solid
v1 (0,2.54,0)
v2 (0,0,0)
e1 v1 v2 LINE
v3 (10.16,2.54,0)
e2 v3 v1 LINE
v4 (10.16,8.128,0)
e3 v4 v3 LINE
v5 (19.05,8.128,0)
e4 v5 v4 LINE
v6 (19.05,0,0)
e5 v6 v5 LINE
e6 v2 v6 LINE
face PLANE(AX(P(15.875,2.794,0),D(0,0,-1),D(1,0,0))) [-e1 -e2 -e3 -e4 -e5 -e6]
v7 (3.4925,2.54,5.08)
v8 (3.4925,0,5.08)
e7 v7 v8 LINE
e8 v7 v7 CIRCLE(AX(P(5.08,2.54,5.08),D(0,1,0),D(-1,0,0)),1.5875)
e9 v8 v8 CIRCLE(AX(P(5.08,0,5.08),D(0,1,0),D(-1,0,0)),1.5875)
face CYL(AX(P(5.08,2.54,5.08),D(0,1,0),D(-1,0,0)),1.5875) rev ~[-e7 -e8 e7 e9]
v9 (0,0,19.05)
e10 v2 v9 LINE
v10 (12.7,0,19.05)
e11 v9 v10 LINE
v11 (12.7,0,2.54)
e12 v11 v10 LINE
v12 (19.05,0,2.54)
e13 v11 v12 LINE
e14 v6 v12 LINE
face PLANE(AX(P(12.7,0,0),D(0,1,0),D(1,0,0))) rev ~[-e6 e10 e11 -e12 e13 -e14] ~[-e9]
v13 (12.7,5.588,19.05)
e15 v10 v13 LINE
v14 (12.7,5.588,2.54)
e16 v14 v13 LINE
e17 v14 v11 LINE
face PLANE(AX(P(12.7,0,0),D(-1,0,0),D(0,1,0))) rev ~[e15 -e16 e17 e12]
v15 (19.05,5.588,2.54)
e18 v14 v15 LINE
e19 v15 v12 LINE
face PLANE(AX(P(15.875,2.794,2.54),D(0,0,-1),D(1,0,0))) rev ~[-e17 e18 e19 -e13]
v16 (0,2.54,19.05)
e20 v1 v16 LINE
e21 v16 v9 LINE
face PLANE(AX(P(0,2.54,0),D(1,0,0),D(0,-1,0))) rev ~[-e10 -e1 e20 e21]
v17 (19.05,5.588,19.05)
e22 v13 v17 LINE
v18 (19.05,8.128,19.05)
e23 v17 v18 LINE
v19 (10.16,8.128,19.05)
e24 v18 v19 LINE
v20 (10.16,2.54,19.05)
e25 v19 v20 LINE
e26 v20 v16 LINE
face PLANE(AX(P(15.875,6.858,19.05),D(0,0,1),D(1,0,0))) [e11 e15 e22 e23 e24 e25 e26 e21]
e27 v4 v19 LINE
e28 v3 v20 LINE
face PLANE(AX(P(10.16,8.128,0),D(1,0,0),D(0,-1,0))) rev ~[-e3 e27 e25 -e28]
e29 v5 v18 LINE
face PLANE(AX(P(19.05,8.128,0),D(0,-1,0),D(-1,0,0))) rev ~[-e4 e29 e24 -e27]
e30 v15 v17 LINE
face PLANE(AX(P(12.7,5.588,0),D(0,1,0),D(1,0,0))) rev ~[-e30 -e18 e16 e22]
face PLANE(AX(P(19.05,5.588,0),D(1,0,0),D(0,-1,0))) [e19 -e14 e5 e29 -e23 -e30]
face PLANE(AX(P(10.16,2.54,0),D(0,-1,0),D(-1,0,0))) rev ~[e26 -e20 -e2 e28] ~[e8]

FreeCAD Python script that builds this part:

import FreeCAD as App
import Part
import Sketcher

V = App.Vector
Q = App.Units.Quantity

doc = App.newDocument("Part")
body = doc.addObject("PartDesign::Body", "Body")

# Sketch on XY plane
sketch1 = doc.addObject("Sketcher::SketchObject", "Sketch")
body.addObject(sketch1)
sketch1.AttachmentSupport = (doc.XY_Plane, [""])
sketch1.MapMode = "FlatFace"
sketch1.addGeometry([
    Part.LineSegment(V(12.7, 5.6, 0), V(19.1, 5.6, 0)),  # 0
    Part.LineSegment(V(19.1, 5.6, 0), V(19.1, 8.1, 0)),  # 1
    Part.LineSegment(V(19.1, 8.1, 0), V(10.2, 8.1, 0)),  # 2
    Part.LineSegment(V(10.2, 8.1, 0), V(10.2, 2.5, 0)),  # 3
    Part.LineSegment(V(10.2, 2.5, 0), V(0, 2.5, 0)),  # 4
    Part.LineSegment(V(0, 2.5, 0), V(0, 0, 0)),  # 5
    Part.LineSegment(V(0, 0, 0), V(12.7, 0, 0)),  # 6
    Part.LineSegment(V(12.7, 0, 0), V(12.7, 5.6, 0)),  # 7
], False)
sketch1.addConstraint([
    Sketcher.Constraint("Coincident", 0, 2, 1, 1),
    Sketcher.Constraint("Coincident", 1, 2, 2, 1),
    Sketcher.Constraint("Coincident", 2, 2, 3, 1),
    Sketcher.Constraint("Coincident", 3, 2, 4, 1),
    Sketcher.Constraint("Coincident", 4, 2, 5, 1),
    Sketcher.Constraint("Coincident", 5, 2, 6, 1),
    Sketcher.Constraint("Coincident", 6, 2, 7, 1),
    Sketcher.Constraint("Coincident", 7, 2, 0, 1),
    Sketcher.Constraint("Horizontal", 0),
    Sketcher.Constraint("Vertical", 1),
    Sketcher.Constraint("Horizontal", 2),
    Sketcher.Constraint("Vertical", 3),
    Sketcher.Constraint("Horizontal", 4),
    Sketcher.Constraint("Vertical", 5),
    Sketcher.Constraint("Horizontal", 6),
    Sketcher.Constraint("Vertical", 7),
    Sketcher.Constraint("Coincident", 5, 2, -1, 1),
    Sketcher.Constraint("Equal", 1, 5),
    Sketcher.Constraint("DistanceX", 4, 2, 4, 1, Q("0.4 in")),
    Sketcher.Constraint("DistanceX", 6, 1, 6, 2, Q("0.5 in")),
    Sketcher.Constraint("DistanceY", 1, 1, 1, 2, Q("0.1 in")),
    Sketcher.Constraint("DistanceX", 0, 1, 0, 2, Q("0.25 in")),
    Sketcher.Constraint("DistanceY", 3, 2, 3, 1, Q("0.22 in")),
])
pad1 = doc.addObject("PartDesign::Pad", "Pad")
body.addObject(pad1)
pad1.Profile = sketch1
pad1.Length = Q("0.75 in")

# Sketch on XY plane
sketch2 = doc.addObject("Sketcher::SketchObject", "Sketch001")
body.addObject(sketch2)
sketch2.AttachmentSupport = (doc.XY_Plane, [""])
sketch2.MapMode = "FlatFace"
sketch2.addGeometry([
    Part.LineSegment(V(13, 0, 0), V(13, 6, 0)),
    Part.LineSegment(V(13, 6, 0), V(19, 6, 0)),
    Part.LineSegment(V(19, 6, 0), V(19, 0, 0)),
    Part.LineSegment(V(19, 0, 0), V(13, 0, 0)),
], False)
sketch2.addConstraint([
    Sketcher.Constraint("Coincident", 0, 2, 1, 1),
    Sketcher.Constraint("Coincident", 1, 2, 2, 1),
    Sketcher.Constraint("Coincident", 2, 2, 3, 1),
    Sketcher.Constraint("Coincident", 3, 2, 0, 1),
    Sketcher.Constraint("Vertical", 0),
    Sketcher.Constraint("Horizontal", 1),
    Sketcher.Constraint("Vertical", 2),
    Sketcher.Constraint("Horizontal", 3),
    Sketcher.Constraint("PointOnObject", 2, 2, -1),
    Sketcher.Constraint("DistanceX", 1, 1, 1, 2, Q("0.25 in")),
    Sketcher.Constraint("DistanceY", 0, 1, 0, 2, Q("0.22 in")),
    Sketcher.Constraint("DistanceX", -1, 1, 0, 2, Q("0.5 in")),
])
pad2 = doc.addObject("PartDesign::Pad", "Pad001")
body.addObject(pad2)
pad2.Profile = sketch2
pad2.Length = Q("0.1 in")

# Sketch on XZ plane
sketch3 = doc.addObject("Sketcher::SketchObject", "Sketch002")
body.addObject(sketch3)
sketch3.AttachmentSupport = (doc.XZ_Plane, [""])
sketch3.MapMode = "FlatFace"
sketch3.AttachmentOffset = App.Placement(V(0, 0, -0.1 * 25.4), App.Rotation())
sketch3.addGeometry(Part.Circle(V(5.1, 5.1, 0), V(0, 0, 1), 1.6), False)
sketch3.addConstraint([
    Sketcher.Constraint("Diameter", 0, Q("0.125 in")),
    Sketcher.Constraint("DistanceX", -1, 1, 0, 3, Q("0.2 in")),
    Sketcher.Constraint("DistanceY", -1, 1, 0, 3, Q("0.2 in")),
])
pocket1 = doc.addObject("PartDesign::Pocket", "Pocket")
body.addObject(pocket1)
pocket1.Profile = sketch3
pocket1.Length = Q("1 in")
pocket1.Reversed = True

doc.recompute()
